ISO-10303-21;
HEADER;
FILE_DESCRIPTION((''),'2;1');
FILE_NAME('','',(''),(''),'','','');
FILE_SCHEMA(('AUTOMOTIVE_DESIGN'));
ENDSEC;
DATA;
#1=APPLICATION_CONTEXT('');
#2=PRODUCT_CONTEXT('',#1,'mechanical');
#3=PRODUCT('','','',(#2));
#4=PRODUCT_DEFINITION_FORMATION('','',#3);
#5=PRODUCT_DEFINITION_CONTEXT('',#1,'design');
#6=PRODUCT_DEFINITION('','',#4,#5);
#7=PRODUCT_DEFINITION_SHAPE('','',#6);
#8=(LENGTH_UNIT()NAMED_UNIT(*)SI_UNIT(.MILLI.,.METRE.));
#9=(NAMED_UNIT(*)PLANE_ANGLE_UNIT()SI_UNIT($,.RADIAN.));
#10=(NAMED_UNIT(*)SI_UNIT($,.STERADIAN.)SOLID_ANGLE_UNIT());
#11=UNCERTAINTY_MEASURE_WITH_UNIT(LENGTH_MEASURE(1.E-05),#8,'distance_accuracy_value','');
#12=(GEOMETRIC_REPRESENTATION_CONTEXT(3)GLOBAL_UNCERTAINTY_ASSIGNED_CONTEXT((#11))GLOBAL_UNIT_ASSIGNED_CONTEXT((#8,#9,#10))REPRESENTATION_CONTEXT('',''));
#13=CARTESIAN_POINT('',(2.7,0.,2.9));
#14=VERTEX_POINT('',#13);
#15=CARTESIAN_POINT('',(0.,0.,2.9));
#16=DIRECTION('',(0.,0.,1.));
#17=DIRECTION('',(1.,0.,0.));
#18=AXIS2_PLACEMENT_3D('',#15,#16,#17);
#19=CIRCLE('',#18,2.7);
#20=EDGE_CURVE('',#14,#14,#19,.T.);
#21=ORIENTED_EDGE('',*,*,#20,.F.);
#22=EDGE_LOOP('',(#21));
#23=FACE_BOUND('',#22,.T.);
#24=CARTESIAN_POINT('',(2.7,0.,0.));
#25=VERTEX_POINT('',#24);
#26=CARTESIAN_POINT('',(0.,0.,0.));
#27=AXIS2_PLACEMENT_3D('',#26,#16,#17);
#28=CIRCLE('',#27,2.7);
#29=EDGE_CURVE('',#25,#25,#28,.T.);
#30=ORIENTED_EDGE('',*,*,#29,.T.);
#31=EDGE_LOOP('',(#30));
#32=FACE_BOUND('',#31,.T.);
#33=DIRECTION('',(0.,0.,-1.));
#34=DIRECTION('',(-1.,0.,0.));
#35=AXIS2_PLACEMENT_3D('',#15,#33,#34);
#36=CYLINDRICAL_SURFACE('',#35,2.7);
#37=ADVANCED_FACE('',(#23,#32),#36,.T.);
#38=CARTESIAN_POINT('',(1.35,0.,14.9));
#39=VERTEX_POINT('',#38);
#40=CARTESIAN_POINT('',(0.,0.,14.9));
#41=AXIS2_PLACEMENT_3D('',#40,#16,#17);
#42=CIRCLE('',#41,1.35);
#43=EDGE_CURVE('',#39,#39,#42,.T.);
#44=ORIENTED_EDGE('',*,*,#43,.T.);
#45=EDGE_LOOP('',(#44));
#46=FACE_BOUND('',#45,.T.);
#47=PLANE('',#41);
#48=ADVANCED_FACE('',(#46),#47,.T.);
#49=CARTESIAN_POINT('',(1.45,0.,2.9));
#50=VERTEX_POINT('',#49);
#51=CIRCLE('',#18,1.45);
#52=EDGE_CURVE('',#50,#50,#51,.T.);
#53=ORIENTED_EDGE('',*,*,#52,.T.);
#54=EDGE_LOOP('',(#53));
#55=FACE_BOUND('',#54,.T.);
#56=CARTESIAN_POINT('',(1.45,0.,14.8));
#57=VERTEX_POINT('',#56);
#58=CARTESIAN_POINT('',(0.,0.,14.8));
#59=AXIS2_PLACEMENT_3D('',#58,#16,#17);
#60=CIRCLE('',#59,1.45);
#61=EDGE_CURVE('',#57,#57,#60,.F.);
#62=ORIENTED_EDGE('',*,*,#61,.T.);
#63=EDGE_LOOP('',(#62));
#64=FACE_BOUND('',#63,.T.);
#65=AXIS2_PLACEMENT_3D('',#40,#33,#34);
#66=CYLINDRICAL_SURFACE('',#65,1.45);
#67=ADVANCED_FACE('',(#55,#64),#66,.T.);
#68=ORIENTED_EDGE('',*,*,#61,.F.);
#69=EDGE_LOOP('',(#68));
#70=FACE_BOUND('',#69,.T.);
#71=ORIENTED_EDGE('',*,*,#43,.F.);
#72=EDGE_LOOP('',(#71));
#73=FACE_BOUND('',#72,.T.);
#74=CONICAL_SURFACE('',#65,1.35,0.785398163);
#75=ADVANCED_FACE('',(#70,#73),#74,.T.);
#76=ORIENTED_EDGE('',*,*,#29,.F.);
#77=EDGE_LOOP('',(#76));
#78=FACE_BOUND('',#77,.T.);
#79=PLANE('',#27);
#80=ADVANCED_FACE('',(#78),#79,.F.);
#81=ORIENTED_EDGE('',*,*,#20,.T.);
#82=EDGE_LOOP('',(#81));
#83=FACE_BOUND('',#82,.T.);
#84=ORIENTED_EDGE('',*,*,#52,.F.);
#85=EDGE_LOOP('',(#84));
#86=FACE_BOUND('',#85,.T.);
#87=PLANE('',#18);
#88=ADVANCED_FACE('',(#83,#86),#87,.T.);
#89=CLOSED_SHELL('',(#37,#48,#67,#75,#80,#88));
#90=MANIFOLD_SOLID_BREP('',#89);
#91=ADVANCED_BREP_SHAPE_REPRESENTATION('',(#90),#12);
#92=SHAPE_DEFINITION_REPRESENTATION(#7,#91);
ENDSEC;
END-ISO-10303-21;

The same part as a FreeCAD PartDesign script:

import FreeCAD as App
import Part
import Sketcher


def edges_at(feature, points):
    """Names of the edges that pass closest to the given points."""
    edges = feature.Shape.Edges
    near = lambda p: min(range(len(edges)), key=lambda i: edges[i].distToShape(Part.Vertex(*p))[0])
    return sorted({f"Edge{near(p) + 1}" for p in points})

doc = App.newDocument("Part")
body = doc.addObject("PartDesign::Body", "Body")

# Sketch on XY plane
sketch1 = body.newObject("Sketcher::SketchObject", "Sketch")
sketch1.AttachmentSupport = (doc.getObject("XY_Plane"), [""])
sketch1.MapMode = "FlatFace"
sketch1.addGeometry(Part.Circle(App.Vector(0, 0, 0), App.Vector(0, 0, 1), 2.7), False)
sketch1.addConstraint([
    Sketcher.Constraint("Coincident", 0, 3, -1, 1),
    Sketcher.Constraint("Diameter", 0, 5.4),
])
pad1 = body.newObject("PartDesign::Pad", "Pad")
pad1.Profile = sketch1
pad1.Length = 2.9

# Sketch on XY plane
sketch2 = body.newObject("Sketcher::SketchObject", "Sketch001")
sketch2.AttachmentSupport = (doc.getObject("XY_Plane"), [""])
sketch2.MapMode = "FlatFace"
sketch2.AttachmentOffset = App.Placement(App.Vector(0, 0, 2.9), App.Rotation())
sketch2.addGeometry(Part.Circle(App.Vector(0, 0, 0), App.Vector(0, 0, 1), 1.4), False)
sketch2.addConstraint([
    Sketcher.Constraint("Coincident", 0, 3, -1, 1),
    Sketcher.Constraint("Diameter", 0, 2.9),
])
pad2 = body.newObject("PartDesign::Pad", "Pad001")
pad2.Profile = sketch2
pad2.Length = 12
doc.recompute()

chamfer = body.newObject("PartDesign::Chamfer", "Chamfer")
chamfer.Base = (pad2, edges_at(pad2, [(-1.45, 0, 14.9)]))
chamfer.Size = 0.1

doc.recompute()
